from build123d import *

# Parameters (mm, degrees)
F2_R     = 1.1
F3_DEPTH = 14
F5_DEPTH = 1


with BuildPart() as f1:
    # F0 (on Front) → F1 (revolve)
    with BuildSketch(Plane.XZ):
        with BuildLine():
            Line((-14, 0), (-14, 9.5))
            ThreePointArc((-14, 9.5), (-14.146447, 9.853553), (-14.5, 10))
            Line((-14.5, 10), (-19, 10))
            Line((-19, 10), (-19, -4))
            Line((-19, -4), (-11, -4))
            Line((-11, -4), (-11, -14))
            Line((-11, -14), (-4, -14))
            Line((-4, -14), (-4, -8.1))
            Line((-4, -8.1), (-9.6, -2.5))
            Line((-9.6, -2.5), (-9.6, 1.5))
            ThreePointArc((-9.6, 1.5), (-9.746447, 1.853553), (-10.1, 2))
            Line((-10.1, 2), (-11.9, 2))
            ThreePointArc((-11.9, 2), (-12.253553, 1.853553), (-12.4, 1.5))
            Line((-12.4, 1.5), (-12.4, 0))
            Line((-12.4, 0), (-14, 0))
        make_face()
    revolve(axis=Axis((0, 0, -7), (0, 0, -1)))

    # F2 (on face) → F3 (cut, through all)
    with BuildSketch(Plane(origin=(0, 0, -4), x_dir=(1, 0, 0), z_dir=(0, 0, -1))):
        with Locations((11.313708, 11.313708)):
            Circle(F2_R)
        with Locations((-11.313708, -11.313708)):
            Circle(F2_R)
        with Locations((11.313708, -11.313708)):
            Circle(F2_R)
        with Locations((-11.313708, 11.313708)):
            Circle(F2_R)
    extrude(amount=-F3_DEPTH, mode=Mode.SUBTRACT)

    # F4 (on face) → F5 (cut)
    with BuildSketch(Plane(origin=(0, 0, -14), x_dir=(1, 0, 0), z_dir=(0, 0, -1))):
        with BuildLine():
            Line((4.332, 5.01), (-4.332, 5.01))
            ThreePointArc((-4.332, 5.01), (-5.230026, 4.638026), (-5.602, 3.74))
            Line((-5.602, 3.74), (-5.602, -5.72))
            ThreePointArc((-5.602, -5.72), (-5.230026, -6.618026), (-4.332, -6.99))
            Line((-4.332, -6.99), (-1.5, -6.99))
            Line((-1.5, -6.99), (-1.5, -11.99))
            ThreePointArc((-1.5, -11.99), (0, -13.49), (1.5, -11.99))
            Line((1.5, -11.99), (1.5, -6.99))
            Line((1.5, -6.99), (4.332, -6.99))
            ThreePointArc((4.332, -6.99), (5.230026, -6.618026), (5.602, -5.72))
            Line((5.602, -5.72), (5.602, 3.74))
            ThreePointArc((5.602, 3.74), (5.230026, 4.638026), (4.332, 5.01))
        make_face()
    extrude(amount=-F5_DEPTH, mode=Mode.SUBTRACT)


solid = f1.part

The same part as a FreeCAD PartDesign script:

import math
import FreeCAD as App
import Part
import Sketcher
Q = App.Units.Quantity

doc = App.newDocument("Part")
body = doc.addObject("PartDesign::Body", "Body")

# Sketch on XZ plane
sketch1 = doc.addObject("Sketcher::SketchObject", "Sketch")
body.addObject(sketch1)
sketch1.AttachmentSupport = (doc.XZ_Plane, [""])
sketch1.MapMode = "FlatFace"
sketch1.addGeometry(Part.LineSegment(App.Vector(-14, 0, 0), App.Vector(-14, 9.5, 0)), False)
sketch1.addGeometry(Part.ArcOfCircle(Part.Circle(App.Vector(-14.5, 9.5, 0), App.Vector(0, 0, 1), 0.5), math.radians(0), math.radians(90)), False)
sketch1.addGeometry(Part.LineSegment(App.Vector(-14.5, 10, 0), App.Vector(-19, 10, 0)), False)
sketch1.addGeometry(Part.LineSegment(App.Vector(-19, 10, 0), App.Vector(-19, -4, 0)), False)
sketch1.addGeometry(Part.LineSegment(App.Vector(-19, -4, 0), App.Vector(-11, -4, 0)), False)
sketch1.addGeometry(Part.LineSegment(App.Vector(-11, -4, 0), App.Vector(-11, -14, 0)), False)
sketch1.addGeometry(Part.LineSegment(App.Vector(-11, -14, 0), App.Vector(-4, -14, 0)), False)
sketch1.addGeometry(Part.LineSegment(App.Vector(-4, -14, 0), App.Vector(-4, -8.1, 0)), False)
sketch1.addGeometry(Part.LineSegment(App.Vector(-4, -8.1, 0), App.Vector(-9.6, -2.5, 0)), False)
sketch1.addGeometry(Part.LineSegment(App.Vector(-9.6, -2.5, 0), App.Vector(-9.6, 1.5, 0)), False)
sketch1.addGeometry(Part.ArcOfCircle(Part.Circle(App.Vector(-10.1, 1.5, 0), App.Vector(0, 0, 1), 0.5), math.radians(0), math.radians(90)), False)
sketch1.addGeometry(Part.LineSegment(App.Vector(-10.1, 2, 0), App.Vector(-11.9, 2, 0)), False)
sketch1.addGeometry(Part.ArcOfCircle(Part.Circle(App.Vector(-11.9, 1.5, 0), App.Vector(0, 0, 1), 0.5), math.radians(90), math.radians(180)), False)
sketch1.addGeometry(Part.LineSegment(App.Vector(-12.4, 1.5, 0), App.Vector(-12.4, 0, 0)), False)
sketch1.addGeometry(Part.LineSegment(App.Vector(-12.4, 0, 0), App.Vector(-14, 0, 0)), False)
sketch1.addConstraint(Sketcher.Constraint("Coincident", 0, 2, 1, 1))
sketch1.addConstraint(Sketcher.Constraint("Coincident", 1, 2, 2, 1))
sketch1.addConstraint(Sketcher.Constraint("Coincident", 2, 2, 3, 1))
sketch1.addConstraint(Sketcher.Constraint("Coincident", 3, 2, 4, 1))
sketch1.addConstraint(Sketcher.Constraint("Coincident", 4, 2, 5, 1))
sketch1.addConstraint(Sketcher.Constraint("Coincident", 5, 2, 6, 1))
sketch1.addConstraint(Sketcher.Constraint("Coincident", 6, 2, 7, 1))
sketch1.addConstraint(Sketcher.Constraint("Coincident", 7, 2, 8, 1))
sketch1.addConstraint(Sketcher.Constraint("Coincident", 8, 2, 9, 1))
sketch1.addConstraint(Sketcher.Constraint("Coincident", 9, 2, 10, 1))
sketch1.addConstraint(Sketcher.Constraint("Coincident", 10, 2, 11, 1))
sketch1.addConstraint(Sketcher.Constraint("Coincident", 11, 2, 12, 1))
sketch1.addConstraint(Sketcher.Constraint("Coincident", 12, 2, 13, 1))
sketch1.addConstraint(Sketcher.Constraint("Coincident", 13, 2, 14, 1))
sketch1.addConstraint(Sketcher.Constraint("Coincident", 14, 2, 0, 1))
sketch1.addConstraint(Sketcher.Constraint("Vertical", 0))
sketch1.addConstraint(Sketcher.Constraint("Horizontal", 2))
sketch1.addConstraint(Sketcher.Constraint("Vertical", 3))
sketch1.addConstraint(Sketcher.Constraint("Horizontal", 4))
sketch1.addConstraint(Sketcher.Constraint("Vertical", 5))
sketch1.addConstraint(Sketcher.Constraint("Horizontal", 6))
sketch1.addConstraint(Sketcher.Constraint("Vertical", 7))
sketch1.addConstraint(Sketcher.Constraint("Vertical", 9))
sketch1.addConstraint(Sketcher.Constraint("Horizontal", 11))
sketch1.addConstraint(Sketcher.Constraint("Vertical", 13))
sketch1.addConstraint(Sketcher.Constraint("Horizontal", 14))
sketch1.addConstraint(Sketcher.Constraint("Equal", 1, 10))
sketch1.addConstraint(Sketcher.Constraint("Equal", 10, 12))
sketch1.addConstraint(Sketcher.Constraint("PointOnObject", 13, 2, -1))
sketch1.addConstraint(Sketcher.Constraint("Horizontal", 1, 3, 0, 2))
sketch1.addConstraint(Sketcher.Constraint("Horizontal", 12, 3, 9, 2))
sketch1.addConstraint(Sketcher.Constraint("Horizontal", 9, 2, 12, 2))
sketch1.addConstraint(Sketcher.Constraint("Vertical", 12, 3, 11, 2))
sketch1.addConstraint(Sketcher.Constraint("Radius", 1, 0.500001))
sketch1.addConstraint(Sketcher.Constraint("DistanceX", 4, 1, 4, 2, 8.0))
sketch1.addConstraint(Sketcher.Constraint("DistanceX", 6, 1, 6, 2, 7.0))
sketch1.addConstraint(Sketcher.Constraint("DistanceY", 3, 2, 3, 1, 14.0))
sketch1.addConstraint(Sketcher.Constraint("DistanceY", 5, 2, 5, 1, 10.0))
sketch1.addConstraint(Sketcher.Constraint("DistanceY", 9, 1, 9, 2, 4.0))
sketch1.addConstraint(Sketcher.Constraint("Angle", 8, Q("135 deg")))
sketch1.addConstraint(Sketcher.Constraint("DistanceX", 2, 2, 2, 1, 4.5))
sketch1.addConstraint(Sketcher.Constraint("DistanceX", 11, 2, 11, 1, 1.8))
sketch1.addConstraint(Sketcher.Constraint("DistanceX", 14, 2, 14, 1, 1.6))
sketch1.addConstraint(Sketcher.Constraint("DistanceY", 0, 1, 0, 2, 9.5))
sketch1.addConstraint(Sketcher.Constraint("DistanceY", 7, 1, 7, 2, 5.9))
sketch1.addConstraint(Sketcher.Constraint("DistanceY", 13, 2, 13, 1, 1.5))
sketch1.addConstraint(Sketcher.Constraint("DistanceX", 0, 2, -1, 1, 14.0))
sketch1.addConstraint(Sketcher.Constraint("DistanceX", 2, 2, -1, 1, 19.0))
revolution = doc.addObject("PartDesign::Revolution", "Revolution")
body.addObject(revolution)
revolution.Profile = sketch1
revolution.ReferenceAxis = (sketch1, ["V_Axis"])
revolution.Angle = 360

# Sketch on XY plane
sketch2 = doc.addObject("Sketcher::SketchObject", "Sketch001")
body.addObject(sketch2)
sketch2.AttachmentSupport = (doc.XY_Plane, [""])
sketch2.MapMode = "FlatFace"
sketch2.AttachmentOffset = App.Placement(App.Vector(0, 0, -4), App.Rotation())
sketch2.addGeometry(Part.Circle(App.Vector(11.3, -11.3, 0), App.Vector(0, 0, 1), 1.1), False)
sketch2.addGeometry(Part.Circle(App.Vector(-11.3, 11.3, 0), App.Vector(0, 0, 1), 1.1), False)
sketch2.addGeometry(Part.Circle(App.Vector(11.3, 11.3, 0), App.Vector(0, 0, 1), 1.1), False)
sketch2.addGeometry(Part.Circle(App.Vector(-11.3, -11.3, 0), App.Vector(0, 0, 1), 1.1), False)
sketch2.addConstraint(Sketcher.Constraint("Equal", 0, 1))
sketch2.addConstraint(Sketcher.Constraint("Equal", 1, 2))
sketch2.addConstraint(Sketcher.Constraint("Equal", 2, 3))
sketch2.addConstraint(Sketcher.Constraint("Symmetric", 0, 3, 1, 3, -1, 1))
sketch2.addConstraint(Sketcher.Constraint("Symmetric", 2, 3, 3, 3, -1, 1))
sketch2.addConstraint(Sketcher.Constraint("Symmetric", 1, 3, 2, 3, -2))
sketch2.addConstraint(Sketcher.Constraint("Diameter", 0, 2.2))
sketch2.addConstraint(Sketcher.Constraint("DistanceX", -1, 1, 0, 3, 11.313708))
sketch2.addConstraint(Sketcher.Constraint("DistanceY", 0, 3, -1, 1, 11.313708))
pocket1 = doc.addObject("PartDesign::Pocket", "Pocket")
body.addObject(pocket1)
pocket1.Profile = sketch2
pocket1.Type = "ThroughAll"
pocket1.Reversed = True

# Sketch on XY plane
sketch3 = doc.addObject("Sketcher::SketchObject", "Sketch002")
body.addObject(sketch3)
sketch3.AttachmentSupport = (doc.XY_Plane, [""])
sketch3.MapMode = "FlatFace"
sketch3.AttachmentOffset = App.Placement(App.Vector(0, 0, -14), App.Rotation())
sketch3.addGeometry(Part.LineSegment(App.Vector(4.3, -5, 0), App.Vector(-4.3, -5, 0)), False)
sketch3.addGeometry(Part.ArcOfCircle(Part.Circle(App.Vector(-4.3, -3.7, 0), App.Vector(0, 0, 1), 1.3), math.radians(180), math.radians(270)), False)
sketch3.addGeometry(Part.LineSegment(App.Vector(-5.6, -3.7, 0), App.Vector(-5.6, 5.7, 0)), False)
sketch3.addGeometry(Part.ArcOfCircle(Part.Circle(App.Vector(-4.3, 5.7, 0), App.Vector(0, 0, 1), 1.3), math.radians(90), math.radians(180)), False)
sketch3.addGeometry(Part.LineSegment(App.Vector(-4.3, 7, 0), App.Vector(-1.5, 7, 0)), False)
sketch3.addGeometry(Part.LineSegment(App.Vector(-1.5, 7, 0), App.Vector(-1.5, 12, 0)), False)
sketch3.addGeometry(Part.ArcOfCircle(Part.Circle(App.Vector(0, 12, 0), App.Vector(0, 0, 1), 1.5), math.radians(0), math.radians(180)), False)
sketch3.addGeometry(Part.LineSegment(App.Vector(1.5, 12, 0), App.Vector(1.5, 7, 0)), False)
sketch3.addGeometry(Part.LineSegment(App.Vector(1.5, 7, 0), App.Vector(4.3, 7, 0)), False)
sketch3.addGeometry(Part.ArcOfCircle(Part.Circle(App.Vector(4.3, 5.7, 0), App.Vector(0, 0, 1), 1.3), math.radians(0), math.radians(90)), False)
sketch3.addGeometry(Part.LineSegment(App.Vector(5.6, 5.7, 0), App.Vector(5.6, -3.7, 0)), False)
sketch3.addGeometry(Part.ArcOfCircle(Part.Circle(App.Vector(4.3, -3.7, 0), App.Vector(0, 0, 1), 1.3), math.radians(-90), math.radians(0)), False)
sketch3.addConstraint(Sketcher.Constraint("Tangent", 0, 2, 1, 2))
sketch3.addConstraint(Sketcher.Constraint("Tangent", 1, 1, 2, 1))
sketch3.addConstraint(Sketcher.Constraint("Tangent", 2, 2, 3, 2))
sketch3.addConstraint(Sketcher.Constraint("Tangent", 3, 1, 4, 1))
sketch3.addConstraint(Sketcher.Constraint("Coincident", 4, 2, 5, 1))
sketch3.addConstraint(Sketcher.Constraint("Tangent", 5, 2, 6, 2))
sketch3.addConstraint(Sketcher.Constraint("Tangent", 6, 1, 7, 1))
sketch3.addConstraint(Sketcher.Constraint("Coincident", 7, 2, 8, 1))
sketch3.addConstraint(Sketcher.Constraint("Tangent", 8, 2, 9, 2))
sketch3.addConstraint(Sketcher.Constraint("Tangent", 9, 1, 10, 1))
sketch3.addConstraint(Sketcher.Constraint("Tangent", 10, 2, 11, 2))
sketch3.addConstraint(Sketcher.Constraint("Tangent", 11, 1, 0, 1))
sketch3.addConstraint(Sketcher.Constraint("Horizontal", 0))
sketch3.addConstraint(Sketcher.Constraint("Vertical", 2))
sketch3.addConstraint(Sketcher.Constraint("Horizontal", 4))
sketch3.addConstraint(Sketcher.Constraint("Vertical", 5))
sketch3.addConstraint(Sketcher.Constraint("Vertical", 7))
sketch3.addConstraint(Sketcher.Constraint("Horizontal", 8))
sketch3.addConstraint(Sketcher.Constraint("Vertical", 10))
sketch3.addConstraint(Sketcher.Constraint("Equal", 1, 3))
sketch3.addConstraint(Sketcher.Constraint("Equal", 3, 9))
sketch3.addConstraint(Sketcher.Constraint("Equal", 9, 11))
sketch3.addConstraint(Sketcher.Constraint("Symmetric", 3, 3, 9, 3, -2))
sketch3.addConstraint(Sketcher.Constraint("PointOnObject", 6, 3, -2))
sketch3.addConstraint(Sketcher.Constraint("Radius", 6, 1.5))
sketch3.addConstraint(Sketcher.Constraint("DistanceY", 5, 1, 5, 2, 5.0))
sketch3.addConstraint(Sketcher.Constraint("Radius", 1, 1.269999))
sketch3.addConstraint(Sketcher.Constraint("DistanceY", 0, 2, 6, 3, 17.0))
sketch3.addConstraint(Sketcher.Constraint("DistanceX", 0, 2, 0, 1, 8.664))
sketch3.addConstraint(Sketcher.Constraint("DistanceY", 1, 3, -1, 1, 3.740001))
pocket2 = doc.addObject("PartDesign::Pocket", "Pocket001")
body.addObject(pocket2)
pocket2.Profile = sketch3
pocket2.Length = 1
pocket2.Reversed = True

doc.recompute()
